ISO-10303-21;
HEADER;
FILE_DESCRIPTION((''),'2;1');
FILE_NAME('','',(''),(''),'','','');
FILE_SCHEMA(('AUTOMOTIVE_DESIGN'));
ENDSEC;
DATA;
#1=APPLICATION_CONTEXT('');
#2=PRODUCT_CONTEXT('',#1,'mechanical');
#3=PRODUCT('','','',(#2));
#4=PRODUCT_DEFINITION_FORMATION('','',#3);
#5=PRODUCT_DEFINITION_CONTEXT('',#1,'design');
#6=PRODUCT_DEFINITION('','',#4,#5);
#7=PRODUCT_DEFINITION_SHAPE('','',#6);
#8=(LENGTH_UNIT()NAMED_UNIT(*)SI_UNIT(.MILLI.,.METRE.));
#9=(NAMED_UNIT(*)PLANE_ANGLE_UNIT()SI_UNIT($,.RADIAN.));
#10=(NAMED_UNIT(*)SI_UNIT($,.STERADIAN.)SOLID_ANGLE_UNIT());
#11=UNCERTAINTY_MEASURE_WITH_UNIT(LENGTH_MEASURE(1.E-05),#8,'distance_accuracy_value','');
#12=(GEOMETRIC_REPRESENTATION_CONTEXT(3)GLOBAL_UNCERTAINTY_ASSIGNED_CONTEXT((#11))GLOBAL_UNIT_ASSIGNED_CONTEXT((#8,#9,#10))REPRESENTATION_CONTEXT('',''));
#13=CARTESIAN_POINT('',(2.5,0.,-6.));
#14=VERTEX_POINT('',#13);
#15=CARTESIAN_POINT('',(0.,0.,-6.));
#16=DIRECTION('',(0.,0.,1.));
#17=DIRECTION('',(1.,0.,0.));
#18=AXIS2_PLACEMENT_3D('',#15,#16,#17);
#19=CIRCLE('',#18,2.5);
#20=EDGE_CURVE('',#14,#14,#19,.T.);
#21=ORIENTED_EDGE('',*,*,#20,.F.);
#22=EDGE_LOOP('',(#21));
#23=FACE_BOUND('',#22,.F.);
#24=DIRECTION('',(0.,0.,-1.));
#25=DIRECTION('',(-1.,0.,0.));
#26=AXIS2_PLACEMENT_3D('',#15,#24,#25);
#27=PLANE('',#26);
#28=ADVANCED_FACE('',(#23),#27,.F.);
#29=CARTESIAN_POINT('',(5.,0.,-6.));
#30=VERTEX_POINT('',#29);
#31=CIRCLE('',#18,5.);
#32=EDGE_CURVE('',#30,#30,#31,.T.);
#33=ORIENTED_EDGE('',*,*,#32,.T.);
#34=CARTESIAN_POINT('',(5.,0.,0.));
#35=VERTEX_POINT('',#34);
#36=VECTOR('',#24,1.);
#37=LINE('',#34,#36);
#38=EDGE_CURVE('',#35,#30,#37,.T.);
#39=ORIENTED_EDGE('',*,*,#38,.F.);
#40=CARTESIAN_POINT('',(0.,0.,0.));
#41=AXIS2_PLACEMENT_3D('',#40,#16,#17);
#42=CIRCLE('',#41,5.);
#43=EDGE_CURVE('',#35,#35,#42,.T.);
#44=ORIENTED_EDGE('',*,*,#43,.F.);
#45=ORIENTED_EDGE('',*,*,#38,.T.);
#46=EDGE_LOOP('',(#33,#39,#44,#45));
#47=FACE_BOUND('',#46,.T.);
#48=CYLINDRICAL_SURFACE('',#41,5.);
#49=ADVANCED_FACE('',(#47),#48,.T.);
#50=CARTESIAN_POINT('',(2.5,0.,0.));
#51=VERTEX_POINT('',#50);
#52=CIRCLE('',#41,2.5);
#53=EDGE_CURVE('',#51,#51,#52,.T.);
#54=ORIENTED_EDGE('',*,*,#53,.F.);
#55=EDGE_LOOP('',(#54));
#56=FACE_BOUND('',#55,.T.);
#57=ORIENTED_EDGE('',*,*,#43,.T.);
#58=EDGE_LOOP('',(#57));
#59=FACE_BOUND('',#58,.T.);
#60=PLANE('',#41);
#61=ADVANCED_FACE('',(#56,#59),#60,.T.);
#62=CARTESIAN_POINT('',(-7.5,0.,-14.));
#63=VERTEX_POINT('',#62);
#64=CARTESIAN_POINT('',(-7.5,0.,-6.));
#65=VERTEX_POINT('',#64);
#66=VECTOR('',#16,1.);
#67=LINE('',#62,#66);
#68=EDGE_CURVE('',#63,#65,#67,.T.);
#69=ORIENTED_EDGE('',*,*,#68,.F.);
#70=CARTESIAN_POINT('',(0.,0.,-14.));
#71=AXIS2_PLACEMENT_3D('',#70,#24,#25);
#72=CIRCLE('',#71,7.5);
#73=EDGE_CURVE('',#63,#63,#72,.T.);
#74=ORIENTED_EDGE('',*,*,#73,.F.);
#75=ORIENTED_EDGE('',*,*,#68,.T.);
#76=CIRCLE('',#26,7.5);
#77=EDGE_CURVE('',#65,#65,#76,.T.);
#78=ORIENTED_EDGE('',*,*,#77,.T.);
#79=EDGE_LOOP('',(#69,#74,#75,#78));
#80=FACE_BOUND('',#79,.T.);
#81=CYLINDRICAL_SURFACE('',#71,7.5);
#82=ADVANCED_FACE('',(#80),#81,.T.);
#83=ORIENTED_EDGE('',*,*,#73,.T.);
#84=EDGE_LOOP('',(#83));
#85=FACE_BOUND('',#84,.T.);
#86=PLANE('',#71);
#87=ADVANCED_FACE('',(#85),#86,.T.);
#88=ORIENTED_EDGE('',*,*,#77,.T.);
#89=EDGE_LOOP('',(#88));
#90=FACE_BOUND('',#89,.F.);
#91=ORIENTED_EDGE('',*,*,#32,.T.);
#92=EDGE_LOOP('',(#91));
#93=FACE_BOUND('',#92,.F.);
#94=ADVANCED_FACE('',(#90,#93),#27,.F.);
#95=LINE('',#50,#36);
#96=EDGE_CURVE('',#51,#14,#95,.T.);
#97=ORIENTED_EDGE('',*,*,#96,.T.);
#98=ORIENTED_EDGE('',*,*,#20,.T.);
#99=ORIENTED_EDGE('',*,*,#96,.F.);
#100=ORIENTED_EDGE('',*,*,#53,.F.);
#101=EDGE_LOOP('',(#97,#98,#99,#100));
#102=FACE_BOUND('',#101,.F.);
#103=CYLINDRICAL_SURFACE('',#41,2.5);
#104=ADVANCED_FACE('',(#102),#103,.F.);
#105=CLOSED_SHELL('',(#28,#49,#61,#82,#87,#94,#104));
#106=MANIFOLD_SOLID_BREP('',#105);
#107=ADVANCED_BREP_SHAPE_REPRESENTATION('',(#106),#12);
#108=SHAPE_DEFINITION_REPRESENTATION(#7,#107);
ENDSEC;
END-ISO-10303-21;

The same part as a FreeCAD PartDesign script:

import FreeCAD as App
import Part
import Sketcher

V = App.Vector

doc = App.newDocument("Part")
body = doc.addObject("PartDesign::Body", "Body")

# Sketch on XY plane
sketch1 = doc.addObject("Sketcher::SketchObject", "Sketch")
body.addObject(sketch1)
sketch1.AttachmentSupport = (doc.XY_Plane, [""])
sketch1.MapMode = "FlatFace"
sketch1.addGeometry([
    Part.Circle(V(0, 0, 0), V(0, 0, 1), 5),
    Part.Circle(V(0, 0, 0), V(0, 0, 1), 2.5),
], False)
sketch1.addConstraint([
    Sketcher.Constraint("Coincident", 0, 3, -1, 1),
    Sketcher.Constraint("Coincident", 1, 3, -1, 1),
    Sketcher.Constraint("Diameter", 0, 10.0),
    Sketcher.Constraint("Diameter", 1, 5.0),
])
pad1 = doc.addObject("PartDesign::Pad", "Pad")
body.addObject(pad1)
pad1.Profile = sketch1
pad1.Length = 14
pad1.Reversed = True

# Sketch on XY plane
sketch2 = doc.addObject("Sketcher::SketchObject", "Sketch001")
body.addObject(sketch2)
sketch2.AttachmentSupport = (doc.XY_Plane, [""])
sketch2.MapMode = "FlatFace"
sketch2.AttachmentOffset = App.Placement(V(0, 0, -14), App.Rotation())
sketch2.addGeometry(Part.Circle(V(0, 0, 0), V(0, 0, 1), 7.5), False)
sketch2.addConstraint([
    Sketcher.Constraint("Coincident", 0, 3, -1, 1),
    Sketcher.Constraint("Diameter", 0, 15.0),
])
pad2 = doc.addObject("PartDesign::Pad", "Pad001")
body.addObject(pad2)
pad2.Profile = sketch2
pad2.Length = 8

doc.recompute()
